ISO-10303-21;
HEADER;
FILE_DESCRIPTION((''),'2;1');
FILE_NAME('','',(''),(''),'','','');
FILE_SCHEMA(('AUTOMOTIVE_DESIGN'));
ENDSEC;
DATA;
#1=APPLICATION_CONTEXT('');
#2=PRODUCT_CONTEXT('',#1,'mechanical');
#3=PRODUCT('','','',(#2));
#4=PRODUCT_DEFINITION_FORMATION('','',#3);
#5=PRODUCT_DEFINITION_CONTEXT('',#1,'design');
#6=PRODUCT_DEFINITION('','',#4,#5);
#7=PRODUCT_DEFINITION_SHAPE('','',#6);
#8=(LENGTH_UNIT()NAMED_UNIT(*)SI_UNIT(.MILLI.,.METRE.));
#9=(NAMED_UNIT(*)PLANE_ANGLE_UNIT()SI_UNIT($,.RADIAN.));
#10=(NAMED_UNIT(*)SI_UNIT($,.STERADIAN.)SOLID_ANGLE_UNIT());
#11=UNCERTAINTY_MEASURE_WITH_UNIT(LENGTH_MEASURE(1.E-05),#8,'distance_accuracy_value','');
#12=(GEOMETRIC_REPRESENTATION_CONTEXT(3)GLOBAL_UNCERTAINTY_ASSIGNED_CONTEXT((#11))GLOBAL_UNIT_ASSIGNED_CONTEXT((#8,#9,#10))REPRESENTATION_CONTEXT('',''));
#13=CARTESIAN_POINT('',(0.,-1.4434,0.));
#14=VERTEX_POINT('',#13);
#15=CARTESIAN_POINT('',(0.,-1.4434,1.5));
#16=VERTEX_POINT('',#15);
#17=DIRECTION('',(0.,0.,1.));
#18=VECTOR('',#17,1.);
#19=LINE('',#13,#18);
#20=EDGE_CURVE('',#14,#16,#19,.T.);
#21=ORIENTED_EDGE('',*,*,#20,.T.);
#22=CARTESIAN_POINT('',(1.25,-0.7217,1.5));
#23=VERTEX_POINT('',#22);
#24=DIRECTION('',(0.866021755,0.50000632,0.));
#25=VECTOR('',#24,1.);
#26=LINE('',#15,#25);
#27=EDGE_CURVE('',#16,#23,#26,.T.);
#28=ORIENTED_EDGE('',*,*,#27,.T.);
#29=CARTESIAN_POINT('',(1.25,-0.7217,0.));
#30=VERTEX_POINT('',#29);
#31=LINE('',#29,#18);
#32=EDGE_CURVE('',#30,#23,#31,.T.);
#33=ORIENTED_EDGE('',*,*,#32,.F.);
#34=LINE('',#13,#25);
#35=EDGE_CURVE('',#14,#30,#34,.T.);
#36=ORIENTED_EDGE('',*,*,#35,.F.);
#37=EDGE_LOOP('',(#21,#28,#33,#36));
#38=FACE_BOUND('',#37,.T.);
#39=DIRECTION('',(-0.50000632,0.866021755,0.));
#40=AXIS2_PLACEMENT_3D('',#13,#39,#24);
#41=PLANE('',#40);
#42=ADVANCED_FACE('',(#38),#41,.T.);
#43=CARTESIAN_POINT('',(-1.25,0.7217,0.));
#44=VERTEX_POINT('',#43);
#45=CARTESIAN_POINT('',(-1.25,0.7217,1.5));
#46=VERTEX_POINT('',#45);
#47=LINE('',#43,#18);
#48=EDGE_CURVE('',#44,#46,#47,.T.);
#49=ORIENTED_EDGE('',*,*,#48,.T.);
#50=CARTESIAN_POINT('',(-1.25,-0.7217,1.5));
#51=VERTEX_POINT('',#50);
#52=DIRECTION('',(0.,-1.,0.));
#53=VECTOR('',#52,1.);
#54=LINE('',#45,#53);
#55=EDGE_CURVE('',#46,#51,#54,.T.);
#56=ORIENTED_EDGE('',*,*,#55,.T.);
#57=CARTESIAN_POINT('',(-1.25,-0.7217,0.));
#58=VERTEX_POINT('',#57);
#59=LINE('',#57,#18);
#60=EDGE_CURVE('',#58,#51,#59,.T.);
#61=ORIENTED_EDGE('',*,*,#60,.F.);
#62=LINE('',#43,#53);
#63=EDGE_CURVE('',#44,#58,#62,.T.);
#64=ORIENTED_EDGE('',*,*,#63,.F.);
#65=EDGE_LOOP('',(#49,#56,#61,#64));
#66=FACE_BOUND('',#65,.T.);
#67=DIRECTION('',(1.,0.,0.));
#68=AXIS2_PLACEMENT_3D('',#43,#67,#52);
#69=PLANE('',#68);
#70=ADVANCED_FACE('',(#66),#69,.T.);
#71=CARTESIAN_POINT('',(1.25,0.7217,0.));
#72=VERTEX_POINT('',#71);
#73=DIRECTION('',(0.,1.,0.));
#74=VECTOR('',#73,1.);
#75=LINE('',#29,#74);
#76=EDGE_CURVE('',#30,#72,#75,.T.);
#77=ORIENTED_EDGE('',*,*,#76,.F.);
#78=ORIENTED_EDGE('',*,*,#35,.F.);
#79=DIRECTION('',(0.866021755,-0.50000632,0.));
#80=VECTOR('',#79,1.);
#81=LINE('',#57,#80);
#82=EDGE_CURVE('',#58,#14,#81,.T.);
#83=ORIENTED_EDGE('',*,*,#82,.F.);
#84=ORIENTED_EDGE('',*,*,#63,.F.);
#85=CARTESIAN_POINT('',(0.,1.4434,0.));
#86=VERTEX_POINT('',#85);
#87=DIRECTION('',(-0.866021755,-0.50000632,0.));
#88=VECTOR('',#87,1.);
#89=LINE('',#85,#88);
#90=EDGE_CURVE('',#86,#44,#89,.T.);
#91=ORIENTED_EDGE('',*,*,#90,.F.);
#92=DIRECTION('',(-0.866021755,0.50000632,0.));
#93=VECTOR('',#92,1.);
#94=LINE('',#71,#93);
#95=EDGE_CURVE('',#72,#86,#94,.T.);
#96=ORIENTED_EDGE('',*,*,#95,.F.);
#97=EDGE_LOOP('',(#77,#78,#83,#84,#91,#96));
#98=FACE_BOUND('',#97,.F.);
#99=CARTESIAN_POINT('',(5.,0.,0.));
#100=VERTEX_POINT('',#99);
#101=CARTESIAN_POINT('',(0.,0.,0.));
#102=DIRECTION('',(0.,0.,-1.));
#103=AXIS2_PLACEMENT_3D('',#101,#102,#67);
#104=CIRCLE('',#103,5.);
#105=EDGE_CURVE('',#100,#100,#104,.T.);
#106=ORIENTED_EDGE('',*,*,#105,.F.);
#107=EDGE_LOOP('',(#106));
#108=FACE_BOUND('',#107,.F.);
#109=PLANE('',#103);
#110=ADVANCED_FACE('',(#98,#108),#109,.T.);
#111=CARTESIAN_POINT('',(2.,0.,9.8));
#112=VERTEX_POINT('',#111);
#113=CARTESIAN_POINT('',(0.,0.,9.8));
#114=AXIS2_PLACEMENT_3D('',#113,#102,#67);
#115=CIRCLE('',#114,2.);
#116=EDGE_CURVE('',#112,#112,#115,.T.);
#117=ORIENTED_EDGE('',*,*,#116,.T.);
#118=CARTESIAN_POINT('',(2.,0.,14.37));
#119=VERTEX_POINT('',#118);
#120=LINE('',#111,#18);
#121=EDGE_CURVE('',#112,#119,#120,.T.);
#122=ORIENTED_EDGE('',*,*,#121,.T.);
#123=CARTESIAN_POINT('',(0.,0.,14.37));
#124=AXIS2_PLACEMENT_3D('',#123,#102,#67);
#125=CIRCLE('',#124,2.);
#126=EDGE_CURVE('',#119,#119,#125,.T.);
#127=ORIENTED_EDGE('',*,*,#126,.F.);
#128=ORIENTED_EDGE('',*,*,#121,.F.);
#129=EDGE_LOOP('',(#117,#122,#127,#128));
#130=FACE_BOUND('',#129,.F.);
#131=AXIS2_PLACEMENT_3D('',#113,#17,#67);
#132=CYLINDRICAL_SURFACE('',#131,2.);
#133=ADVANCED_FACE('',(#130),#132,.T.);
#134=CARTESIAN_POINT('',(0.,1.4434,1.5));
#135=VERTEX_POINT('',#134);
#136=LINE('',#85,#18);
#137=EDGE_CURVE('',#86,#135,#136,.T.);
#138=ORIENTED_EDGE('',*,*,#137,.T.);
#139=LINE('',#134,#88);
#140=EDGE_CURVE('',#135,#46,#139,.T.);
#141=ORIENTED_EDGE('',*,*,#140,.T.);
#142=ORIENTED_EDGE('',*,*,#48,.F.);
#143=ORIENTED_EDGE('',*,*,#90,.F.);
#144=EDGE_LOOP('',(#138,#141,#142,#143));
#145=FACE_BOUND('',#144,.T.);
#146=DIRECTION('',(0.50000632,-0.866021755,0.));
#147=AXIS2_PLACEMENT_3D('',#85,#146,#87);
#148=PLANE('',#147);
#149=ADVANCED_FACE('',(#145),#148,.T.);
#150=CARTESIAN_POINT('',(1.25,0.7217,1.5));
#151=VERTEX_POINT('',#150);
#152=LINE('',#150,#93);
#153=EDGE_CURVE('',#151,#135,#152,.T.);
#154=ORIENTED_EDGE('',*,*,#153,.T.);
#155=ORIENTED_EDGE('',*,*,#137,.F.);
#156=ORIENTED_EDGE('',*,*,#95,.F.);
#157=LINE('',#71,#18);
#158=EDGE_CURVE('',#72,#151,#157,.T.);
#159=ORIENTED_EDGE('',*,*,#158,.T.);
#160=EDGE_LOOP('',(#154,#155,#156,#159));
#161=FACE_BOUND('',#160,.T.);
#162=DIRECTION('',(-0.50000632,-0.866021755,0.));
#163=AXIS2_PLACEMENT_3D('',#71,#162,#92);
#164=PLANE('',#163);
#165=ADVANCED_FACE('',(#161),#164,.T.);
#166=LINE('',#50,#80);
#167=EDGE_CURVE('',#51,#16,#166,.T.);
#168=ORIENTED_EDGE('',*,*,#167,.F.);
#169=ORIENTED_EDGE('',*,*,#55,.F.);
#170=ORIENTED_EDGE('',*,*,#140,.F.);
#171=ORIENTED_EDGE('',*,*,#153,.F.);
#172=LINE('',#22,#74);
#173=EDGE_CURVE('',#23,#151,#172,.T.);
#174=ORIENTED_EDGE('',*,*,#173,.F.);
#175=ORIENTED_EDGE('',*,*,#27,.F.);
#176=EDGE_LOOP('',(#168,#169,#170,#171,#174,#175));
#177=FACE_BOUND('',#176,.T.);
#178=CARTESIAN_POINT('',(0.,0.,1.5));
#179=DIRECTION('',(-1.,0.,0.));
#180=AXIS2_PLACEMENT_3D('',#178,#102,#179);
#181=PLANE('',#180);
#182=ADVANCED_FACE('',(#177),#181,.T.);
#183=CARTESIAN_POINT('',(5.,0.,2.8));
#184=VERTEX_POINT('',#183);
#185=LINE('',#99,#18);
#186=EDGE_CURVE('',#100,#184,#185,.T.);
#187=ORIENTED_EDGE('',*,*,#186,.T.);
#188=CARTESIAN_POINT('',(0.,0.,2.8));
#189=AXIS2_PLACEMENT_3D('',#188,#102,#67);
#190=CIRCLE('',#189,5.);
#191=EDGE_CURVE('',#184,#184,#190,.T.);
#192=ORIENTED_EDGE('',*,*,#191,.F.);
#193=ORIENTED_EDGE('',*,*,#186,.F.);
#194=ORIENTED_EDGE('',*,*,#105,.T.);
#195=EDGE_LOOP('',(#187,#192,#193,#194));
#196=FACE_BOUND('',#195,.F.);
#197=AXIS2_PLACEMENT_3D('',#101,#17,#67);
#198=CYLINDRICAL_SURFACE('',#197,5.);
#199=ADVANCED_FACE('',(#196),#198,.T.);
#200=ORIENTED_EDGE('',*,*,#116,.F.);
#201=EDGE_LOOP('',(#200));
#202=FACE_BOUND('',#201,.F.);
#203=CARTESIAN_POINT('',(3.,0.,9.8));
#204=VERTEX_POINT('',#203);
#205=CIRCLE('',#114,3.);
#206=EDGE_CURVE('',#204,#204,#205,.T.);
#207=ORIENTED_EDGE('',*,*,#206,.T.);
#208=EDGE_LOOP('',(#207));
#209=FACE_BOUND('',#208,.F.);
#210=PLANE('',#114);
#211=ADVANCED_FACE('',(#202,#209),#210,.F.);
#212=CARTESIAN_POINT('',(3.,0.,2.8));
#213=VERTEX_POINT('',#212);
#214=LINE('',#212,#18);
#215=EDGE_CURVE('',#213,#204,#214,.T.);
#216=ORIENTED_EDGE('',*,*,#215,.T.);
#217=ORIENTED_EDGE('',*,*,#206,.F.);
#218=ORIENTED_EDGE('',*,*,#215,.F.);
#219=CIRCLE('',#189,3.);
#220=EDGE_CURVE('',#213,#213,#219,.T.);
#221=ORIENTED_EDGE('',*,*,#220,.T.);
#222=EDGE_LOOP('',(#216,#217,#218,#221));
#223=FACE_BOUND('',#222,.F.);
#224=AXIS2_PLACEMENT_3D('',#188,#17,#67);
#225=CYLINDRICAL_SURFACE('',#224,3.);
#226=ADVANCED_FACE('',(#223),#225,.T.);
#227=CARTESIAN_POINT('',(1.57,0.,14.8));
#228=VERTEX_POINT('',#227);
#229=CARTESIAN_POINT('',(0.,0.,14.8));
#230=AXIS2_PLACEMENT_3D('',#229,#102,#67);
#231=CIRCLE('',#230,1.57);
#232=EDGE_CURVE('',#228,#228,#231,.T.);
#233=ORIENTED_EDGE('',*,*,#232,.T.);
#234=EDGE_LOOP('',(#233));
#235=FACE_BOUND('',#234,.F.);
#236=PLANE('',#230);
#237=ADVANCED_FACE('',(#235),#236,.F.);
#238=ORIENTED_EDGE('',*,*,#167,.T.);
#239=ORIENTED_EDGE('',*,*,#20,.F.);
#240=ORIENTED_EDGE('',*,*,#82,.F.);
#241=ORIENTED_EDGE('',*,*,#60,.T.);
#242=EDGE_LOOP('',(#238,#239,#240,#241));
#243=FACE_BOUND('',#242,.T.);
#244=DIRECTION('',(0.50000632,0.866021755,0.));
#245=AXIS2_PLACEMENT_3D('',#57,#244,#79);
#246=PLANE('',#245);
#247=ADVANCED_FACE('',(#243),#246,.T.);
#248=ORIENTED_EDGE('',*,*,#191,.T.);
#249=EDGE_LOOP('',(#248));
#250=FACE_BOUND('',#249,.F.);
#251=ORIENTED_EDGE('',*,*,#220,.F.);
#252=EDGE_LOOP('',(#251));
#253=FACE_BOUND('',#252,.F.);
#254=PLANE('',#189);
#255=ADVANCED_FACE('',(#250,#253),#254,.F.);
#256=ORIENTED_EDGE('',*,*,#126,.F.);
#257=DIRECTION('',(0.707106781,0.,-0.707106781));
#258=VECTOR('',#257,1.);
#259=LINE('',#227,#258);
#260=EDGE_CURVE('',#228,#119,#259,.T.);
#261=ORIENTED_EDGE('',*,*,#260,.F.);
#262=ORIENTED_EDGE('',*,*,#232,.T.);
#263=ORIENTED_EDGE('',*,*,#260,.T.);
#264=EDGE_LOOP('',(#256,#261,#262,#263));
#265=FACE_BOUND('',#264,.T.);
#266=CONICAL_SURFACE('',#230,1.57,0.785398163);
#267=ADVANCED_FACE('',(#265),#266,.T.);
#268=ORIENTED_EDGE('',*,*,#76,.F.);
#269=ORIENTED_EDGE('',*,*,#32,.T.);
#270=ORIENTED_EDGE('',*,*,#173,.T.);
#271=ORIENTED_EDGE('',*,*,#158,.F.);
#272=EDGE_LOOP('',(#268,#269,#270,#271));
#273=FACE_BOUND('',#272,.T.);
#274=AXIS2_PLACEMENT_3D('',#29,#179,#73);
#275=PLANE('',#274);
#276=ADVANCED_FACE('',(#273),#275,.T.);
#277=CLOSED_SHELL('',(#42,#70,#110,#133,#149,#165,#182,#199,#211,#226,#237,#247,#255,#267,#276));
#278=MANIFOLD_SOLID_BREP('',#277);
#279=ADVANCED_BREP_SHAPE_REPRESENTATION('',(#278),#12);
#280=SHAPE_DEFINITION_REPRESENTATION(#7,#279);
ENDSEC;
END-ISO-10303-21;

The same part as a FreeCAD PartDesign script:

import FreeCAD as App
import Part
import Sketcher
Q = App.Units.Quantity

doc = App.newDocument("Part")
params = doc.addObject("Spreadsheet::Sheet", "Params")
for row, (alias, value) in enumerate([
    ("sketch1_width", "5 mm"),
    ("sketch1_height", "7 mm"),
    ("sketch1_height2", "2.8 mm"),
    ("sketch1_width2", "1 mm"),
    ("sketch1_width3", "2 mm"),
    ("revolution_angle", "360 deg"),
    ("pocket1_length", "1.5 mm"),
], start=1):
    params.set(f"A{row}", alias)
    params.set(f"B{row}", "=" + value)
    params.setAlias(f"B{row}", alias)

body = doc.addObject("PartDesign::Body", "Body")

# Sketch on XZ plane
sketch1 = body.newObject("Sketcher::SketchObject", "Sketch")
sketch1.AttachmentSupport = (doc.getObject("XZ_Plane"), [""])
sketch1.MapMode = "FlatFace"
sketch1.addGeometry(Part.LineSegment(App.Vector(5, 0, 0), App.Vector(0, 0, 0)), False)
sketch1.addGeometry(Part.LineSegment(App.Vector(0, 0, 0), App.Vector(0, 14.8, 0)), False)
sketch1.addGeometry(Part.LineSegment(App.Vector(0, 14.8, 0), App.Vector(1.6, 14.8, 0)), False)
sketch1.addGeometry(Part.LineSegment(App.Vector(1.6, 14.8, 0), App.Vector(2, 14.4, 0)), False)
sketch1.addGeometry(Part.LineSegment(App.Vector(2, 14.4, 0), App.Vector(2, 9.8, 0)), False)
sketch1.addGeometry(Part.LineSegment(App.Vector(2, 9.8, 0), App.Vector(3, 9.8, 0)), False)
sketch1.addGeometry(Part.LineSegment(App.Vector(3, 9.8, 0), App.Vector(3, 2.8, 0)), False)
sketch1.addGeometry(Part.LineSegment(App.Vector(3, 2.8, 0), App.Vector(5, 2.8, 0)), False)
sketch1.addGeometry(Part.LineSegment(App.Vector(5, 2.8, 0), App.Vector(5, 0, 0)), False)
sketch1.addConstraint(Sketcher.Constraint("Coincident", 0, 2, 1, 1))
sketch1.addConstraint(Sketcher.Constraint("Coincident", 1, 2, 2, 1))
sketch1.addConstraint(Sketcher.Constraint("Coincident", 2, 2, 3, 1))
sketch1.addConstraint(Sketcher.Constraint("Coincident", 3, 2, 4, 1))
sketch1.addConstraint(Sketcher.Constraint("Coincident", 4, 2, 5, 1))
sketch1.addConstraint(Sketcher.Constraint("Coincident", 5, 2, 6, 1))
sketch1.addConstraint(Sketcher.Constraint("Coincident", 6, 2, 7, 1))
sketch1.addConstraint(Sketcher.Constraint("Coincident", 7, 2, 8, 1))
sketch1.addConstraint(Sketcher.Constraint("Coincident", 8, 2, 0, 1))
sketch1.addConstraint(Sketcher.Constraint("Horizontal", 0))
sketch1.addConstraint(Sketcher.Constraint("Vertical", 1))
sketch1.addConstraint(Sketcher.Constraint("Horizontal", 2))
sketch1.addConstraint(Sketcher.Constraint("Vertical", 4))
sketch1.addConstraint(Sketcher.Constraint("Horizontal", 5))
sketch1.addConstraint(Sketcher.Constraint("Vertical", 6))
sketch1.addConstraint(Sketcher.Constraint("Horizontal", 7))
sketch1.addConstraint(Sketcher.Constraint("Vertical", 8))
sketch1.addConstraint(Sketcher.Constraint("Coincident", 0, 2, -1, 1))
sketch1.addConstraint(Sketcher.Constraint("DistanceX", 0, 2, 0, 1, Q("5 mm")))
sketch1.addConstraint(Sketcher.Constraint("DistanceY", 6, 2, 6, 1, Q("7 mm")))
sketch1.addConstraint(Sketcher.Constraint("DistanceY", 8, 2, 8, 1, Q("2.8 mm")))
sketch1.addConstraint(Sketcher.Constraint("DistanceY", 4, 2, 2, 2, Q("5 mm")))
sketch1.addConstraint(Sketcher.Constraint("DistanceX", 5, 1, 5, 2, Q("1 mm")))
sketch1.addConstraint(Sketcher.Constraint("DistanceX", 7, 1, 7, 2, Q("2 mm")))
sketch1.addConstraint(Sketcher.Constraint("Angle", 3, Q("-45 deg")))
sketch1.addConstraint(Sketcher.Constraint("DistanceX", 2, 2, 3, 2, Q("0.43 mm")))
sketch1.setExpression("Constraints[18]", "Params.sketch1_width")
sketch1.setExpression("Constraints[19]", "Params.sketch1_height")
sketch1.setExpression("Constraints[20]", "Params.sketch1_height2")
sketch1.setExpression("Constraints[22]", "Params.sketch1_width2")
sketch1.setExpression("Constraints[23]", "Params.sketch1_width3")
revolution = body.newObject("PartDesign::Revolution", "Revolution")
revolution.Profile = sketch1
revolution.ReferenceAxis = (sketch1, ["V_Axis"])
revolution.setExpression("Angle", "Params.revolution_angle")

# Sketch on XY plane
sketch2 = body.newObject("Sketcher::SketchObject", "Sketch001")
sketch2.AttachmentSupport = (doc.getObject("XY_Plane"), [""])
sketch2.MapMode = "FlatFace"
sketch2.addGeometry(Part.LineSegment(App.Vector(1.2, -0.7, 0), App.Vector(0, -1.4, 0)), False)
sketch2.addGeometry(Part.LineSegment(App.Vector(0, -1.4, 0), App.Vector(-1.2, -0.7, 0)), False)
sketch2.addGeometry(Part.LineSegment(App.Vector(-1.2, -0.7, 0), App.Vector(-1.2, 0.7, 0)), False)
sketch2.addGeometry(Part.LineSegment(App.Vector(-1.2, 0.7, 0), App.Vector(0, 1.4, 0)), False)
sketch2.addGeometry(Part.LineSegment(App.Vector(0, 1.4, 0), App.Vector(1.2, 0.7, 0)), False)
sketch2.addGeometry(Part.LineSegment(App.Vector(1.2, 0.7, 0), App.Vector(1.2, -0.7, 0)), False)
sketch2.addConstraint(Sketcher.Constraint("Coincident", 0, 2, 1, 1))
sketch2.addConstraint(Sketcher.Constraint("Coincident", 1, 2, 2, 1))
sketch2.addConstraint(Sketcher.Constraint("Coincident", 2, 2, 3, 1))
sketch2.addConstraint(Sketcher.Constraint("Coincident", 3, 2, 4, 1))
sketch2.addConstraint(Sketcher.Constraint("Coincident", 4, 2, 5, 1))
sketch2.addConstraint(Sketcher.Constraint("Coincident", 5, 2, 0, 1))
sketch2.addConstraint(Sketcher.Constraint("Vertical", 2))
sketch2.addConstraint(Sketcher.Constraint("Vertical", 5))
sketch2.addConstraint(Sketcher.Constraint("Symmetric", 0, 2, 3, 2, -1, 1))
sketch2.addConstraint(Sketcher.Constraint("Symmetric", 1, 2, 4, 2, -1, 1))
sketch2.addConstraint(Sketcher.Constraint("PointOnObject", 0, 2, -2))
sketch2.addConstraint(Sketcher.Constraint("Parallel", 0, 3))
sketch2.addConstraint(Sketcher.Constraint("Horizontal", 2, 2, 4, 2))
sketch2.addConstraint(Sketcher.Constraint("DistanceX", 2, 2, 4, 2, Q("2.5 mm")))
sketch2.addConstraint(Sketcher.Constraint("Angle", 0, Q("-149.9996 deg")))
sketch2.addConstraint(Sketcher.Constraint("DistanceY", 2, 1, 2, 2, Q("1.4434 mm")))
pocket1 = body.newObject("PartDesign::Pocket", "Pocket")
pocket1.Profile = sketch2
pocket1.setExpression("Length", "Params.pocket1_length")
pocket1.Reversed = True

doc.recompute()
